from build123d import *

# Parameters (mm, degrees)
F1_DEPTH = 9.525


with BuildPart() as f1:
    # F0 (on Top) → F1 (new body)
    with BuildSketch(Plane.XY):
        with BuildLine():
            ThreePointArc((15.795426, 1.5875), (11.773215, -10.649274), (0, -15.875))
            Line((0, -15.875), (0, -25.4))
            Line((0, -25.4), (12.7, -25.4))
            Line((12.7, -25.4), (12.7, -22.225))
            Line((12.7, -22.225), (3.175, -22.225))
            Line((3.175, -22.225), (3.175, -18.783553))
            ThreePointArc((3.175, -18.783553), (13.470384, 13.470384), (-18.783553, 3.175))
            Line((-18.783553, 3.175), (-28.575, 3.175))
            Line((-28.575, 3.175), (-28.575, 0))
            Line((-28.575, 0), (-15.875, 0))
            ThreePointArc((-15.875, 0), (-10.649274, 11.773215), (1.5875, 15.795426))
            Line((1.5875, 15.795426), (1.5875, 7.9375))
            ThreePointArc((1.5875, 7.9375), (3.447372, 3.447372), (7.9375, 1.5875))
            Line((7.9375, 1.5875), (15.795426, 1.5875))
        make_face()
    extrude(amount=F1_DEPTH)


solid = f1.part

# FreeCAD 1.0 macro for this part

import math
import FreeCAD as App
import Part
import Sketcher
from FreeCAD import Vector
Q = App.Units.Quantity

doc = App.newDocument("Part")
params = doc.addObject("Spreadsheet::Sheet", "Params")
for row, (alias, value) in enumerate([
    ("sketch1_radius", "0.75 in"),
    ("sketch1_radius2", "0.25 in"),
    ("sketch1_width", "0.5 in"),
    ("sketch1_radius3", "0.625 in"),
    ("sketch1_height", "0.125 in"),
    ("pad1_length", "0.375 in"),
], start=1):
    params.set(f"A{row}", alias)
    params.set(f"B{row}", "=" + value)
    params.setAlias(f"B{row}", alias)

body = doc.addObject("PartDesign::Body", "Body")

sketch1 = doc.addObject("Sketcher::SketchObject", "Sketch")
body.addObject(sketch1)
sketch1.AttachmentSupport = (doc.XY_Plane, [""])
sketch1.MapMode = "FlatFace"
sketch1.addGeometry([
    Part.ArcOfCircle(Part.Circle(Vector(0, 0, 0), Vector(0, 0, 1), 15.9), math.radians(-90), math.radians(6)),
    Part.LineSegment(Vector(0, -15.9, 0), Vector(0, -25.4, 0)),
    Part.LineSegment(Vector(0, -25.4, 0), Vector(12.7, -25.4, 0)),
    Part.LineSegment(Vector(12.7, -25.4, 0), Vector(12.7, -22.2, 0)),
    Part.LineSegment(Vector(12.7, -22.2, 0), Vector(3.2, -22.2, 0)),
    Part.LineSegment(Vector(3.2, -22.2, 0), Vector(3.2, -18.8, 0)),
    Part.ArcOfCircle(Part.Circle(Vector(0, 0, 0), Vector(0, 0, 1), 19), math.radians(-80), math.radians(170)),
    Part.LineSegment(Vector(-18.8, 3.2, 0), Vector(-28.6, 3.2, 0)),
    Part.LineSegment(Vector(-28.6, 3.2, 0), Vector(-28.6, 0, 0)),
    Part.LineSegment(Vector(-28.6, 0, 0), Vector(-15.9, 0, 0)),
    Part.ArcOfCircle(Part.Circle(Vector(0, 0, 0), Vector(0, 0, 1), 15.9), math.radians(84), math.radians(180)),
    Part.LineSegment(Vector(1.6, 15.8, 0), Vector(1.6, 7.9, 0)),
    Part.ArcOfCircle(Part.Circle(Vector(7.9, 7.9, 0), Vector(0, 0, 1), 6.4), math.radians(-180), math.radians(-90)),
    Part.LineSegment(Vector(7.9, 1.6, 0), Vector(15.8, 1.6, 0)),
], False)
sketch1.addConstraint([
    Sketcher.Constraint("Coincident", 0, 1, 1, 1),
    Sketcher.Constraint("Coincident", 1, 2, 2, 1),
    Sketcher.Constraint("Coincident", 2, 2, 3, 1),
    Sketcher.Constraint("Coincident", 3, 2, 4, 1),
    Sketcher.Constraint("Coincident", 4, 2, 5, 1),
    Sketcher.Constraint("Coincident", 5, 2, 6, 1),
    Sketcher.Constraint("Coincident", 6, 2, 7, 1),
    Sketcher.Constraint("Coincident", 7, 2, 8, 1),
    Sketcher.Constraint("Coincident", 8, 2, 9, 1),
    Sketcher.Constraint("Coincident", 9, 2, 10, 2),
    Sketcher.Constraint("Coincident", 10, 1, 11, 1),
    Sketcher.Constraint("Tangent", 11, 2, 12, 1),
    Sketcher.Constraint("Tangent", 12, 2, 13, 1),
    Sketcher.Constraint("Coincident", 13, 2, 0, 2),
    Sketcher.Constraint("Vertical", 1),
    Sketcher.Constraint("Horizontal", 2),
    Sketcher.Constraint("Vertical", 3),
    Sketcher.Constraint("Horizontal", 4),
    Sketcher.Constraint("Vertical", 5),
    Sketcher.Constraint("Horizontal", 7),
    Sketcher.Constraint("Vertical", 8),
    Sketcher.Constraint("Horizontal", 9),
    Sketcher.Constraint("Vertical", 11),
    Sketcher.Constraint("Horizontal", 13),
    Sketcher.Constraint("Coincident", 0, 3, -1, 1),
    Sketcher.Constraint("Coincident", 6, 3, -1, 1),
    Sketcher.Constraint("Coincident", 10, 3, -1, 1),
    Sketcher.Constraint("Equal", 0, 10),
    Sketcher.Constraint("PointOnObject", 0, 1, -2),
    Sketcher.Constraint("PointOnObject", 8, 2, -1),
    Sketcher.Constraint("Equal", 2, 9),
    Sketcher.Constraint("Equal", 4, 1),
    Sketcher.Constraint("Equal", 3, 8),
    Sketcher.Constraint("Equal", 13, 11),
    Sketcher.Constraint("Radius", 6, Q("0.75 in")),
    Sketcher.Constraint("Radius", 12, Q("0.25 in")),
    Sketcher.Constraint("DistanceX", 2, 1, 2, 2, Q("0.5 in")),
    Sketcher.Constraint("DistanceY", 1, 2, -1, 1, Q("1 in")),
    Sketcher.Constraint("Radius", 0, Q("0.625 in")),
    Sketcher.Constraint("DistanceY", 3, 1, 3, 2, Q("0.125 in")),
    Sketcher.Constraint("DistanceX", -1, 1, 12, 3, Q("0.3125 in")),
])
sketch1.setExpression("Constraints[34]", "Params.sketch1_radius")
sketch1.setExpression("Constraints[35]", "Params.sketch1_radius2")
sketch1.setExpression("Constraints[36]", "Params.sketch1_width")
sketch1.setExpression("Constraints[38]", "Params.sketch1_radius3")
sketch1.setExpression("Constraints[39]", "Params.sketch1_height")
pad1 = doc.addObject("PartDesign::Pad", "Pad")
body.addObject(pad1)
pad1.Profile = sketch1
pad1.setExpression("Length", "Params.pad1_length")

doc.recompute()
